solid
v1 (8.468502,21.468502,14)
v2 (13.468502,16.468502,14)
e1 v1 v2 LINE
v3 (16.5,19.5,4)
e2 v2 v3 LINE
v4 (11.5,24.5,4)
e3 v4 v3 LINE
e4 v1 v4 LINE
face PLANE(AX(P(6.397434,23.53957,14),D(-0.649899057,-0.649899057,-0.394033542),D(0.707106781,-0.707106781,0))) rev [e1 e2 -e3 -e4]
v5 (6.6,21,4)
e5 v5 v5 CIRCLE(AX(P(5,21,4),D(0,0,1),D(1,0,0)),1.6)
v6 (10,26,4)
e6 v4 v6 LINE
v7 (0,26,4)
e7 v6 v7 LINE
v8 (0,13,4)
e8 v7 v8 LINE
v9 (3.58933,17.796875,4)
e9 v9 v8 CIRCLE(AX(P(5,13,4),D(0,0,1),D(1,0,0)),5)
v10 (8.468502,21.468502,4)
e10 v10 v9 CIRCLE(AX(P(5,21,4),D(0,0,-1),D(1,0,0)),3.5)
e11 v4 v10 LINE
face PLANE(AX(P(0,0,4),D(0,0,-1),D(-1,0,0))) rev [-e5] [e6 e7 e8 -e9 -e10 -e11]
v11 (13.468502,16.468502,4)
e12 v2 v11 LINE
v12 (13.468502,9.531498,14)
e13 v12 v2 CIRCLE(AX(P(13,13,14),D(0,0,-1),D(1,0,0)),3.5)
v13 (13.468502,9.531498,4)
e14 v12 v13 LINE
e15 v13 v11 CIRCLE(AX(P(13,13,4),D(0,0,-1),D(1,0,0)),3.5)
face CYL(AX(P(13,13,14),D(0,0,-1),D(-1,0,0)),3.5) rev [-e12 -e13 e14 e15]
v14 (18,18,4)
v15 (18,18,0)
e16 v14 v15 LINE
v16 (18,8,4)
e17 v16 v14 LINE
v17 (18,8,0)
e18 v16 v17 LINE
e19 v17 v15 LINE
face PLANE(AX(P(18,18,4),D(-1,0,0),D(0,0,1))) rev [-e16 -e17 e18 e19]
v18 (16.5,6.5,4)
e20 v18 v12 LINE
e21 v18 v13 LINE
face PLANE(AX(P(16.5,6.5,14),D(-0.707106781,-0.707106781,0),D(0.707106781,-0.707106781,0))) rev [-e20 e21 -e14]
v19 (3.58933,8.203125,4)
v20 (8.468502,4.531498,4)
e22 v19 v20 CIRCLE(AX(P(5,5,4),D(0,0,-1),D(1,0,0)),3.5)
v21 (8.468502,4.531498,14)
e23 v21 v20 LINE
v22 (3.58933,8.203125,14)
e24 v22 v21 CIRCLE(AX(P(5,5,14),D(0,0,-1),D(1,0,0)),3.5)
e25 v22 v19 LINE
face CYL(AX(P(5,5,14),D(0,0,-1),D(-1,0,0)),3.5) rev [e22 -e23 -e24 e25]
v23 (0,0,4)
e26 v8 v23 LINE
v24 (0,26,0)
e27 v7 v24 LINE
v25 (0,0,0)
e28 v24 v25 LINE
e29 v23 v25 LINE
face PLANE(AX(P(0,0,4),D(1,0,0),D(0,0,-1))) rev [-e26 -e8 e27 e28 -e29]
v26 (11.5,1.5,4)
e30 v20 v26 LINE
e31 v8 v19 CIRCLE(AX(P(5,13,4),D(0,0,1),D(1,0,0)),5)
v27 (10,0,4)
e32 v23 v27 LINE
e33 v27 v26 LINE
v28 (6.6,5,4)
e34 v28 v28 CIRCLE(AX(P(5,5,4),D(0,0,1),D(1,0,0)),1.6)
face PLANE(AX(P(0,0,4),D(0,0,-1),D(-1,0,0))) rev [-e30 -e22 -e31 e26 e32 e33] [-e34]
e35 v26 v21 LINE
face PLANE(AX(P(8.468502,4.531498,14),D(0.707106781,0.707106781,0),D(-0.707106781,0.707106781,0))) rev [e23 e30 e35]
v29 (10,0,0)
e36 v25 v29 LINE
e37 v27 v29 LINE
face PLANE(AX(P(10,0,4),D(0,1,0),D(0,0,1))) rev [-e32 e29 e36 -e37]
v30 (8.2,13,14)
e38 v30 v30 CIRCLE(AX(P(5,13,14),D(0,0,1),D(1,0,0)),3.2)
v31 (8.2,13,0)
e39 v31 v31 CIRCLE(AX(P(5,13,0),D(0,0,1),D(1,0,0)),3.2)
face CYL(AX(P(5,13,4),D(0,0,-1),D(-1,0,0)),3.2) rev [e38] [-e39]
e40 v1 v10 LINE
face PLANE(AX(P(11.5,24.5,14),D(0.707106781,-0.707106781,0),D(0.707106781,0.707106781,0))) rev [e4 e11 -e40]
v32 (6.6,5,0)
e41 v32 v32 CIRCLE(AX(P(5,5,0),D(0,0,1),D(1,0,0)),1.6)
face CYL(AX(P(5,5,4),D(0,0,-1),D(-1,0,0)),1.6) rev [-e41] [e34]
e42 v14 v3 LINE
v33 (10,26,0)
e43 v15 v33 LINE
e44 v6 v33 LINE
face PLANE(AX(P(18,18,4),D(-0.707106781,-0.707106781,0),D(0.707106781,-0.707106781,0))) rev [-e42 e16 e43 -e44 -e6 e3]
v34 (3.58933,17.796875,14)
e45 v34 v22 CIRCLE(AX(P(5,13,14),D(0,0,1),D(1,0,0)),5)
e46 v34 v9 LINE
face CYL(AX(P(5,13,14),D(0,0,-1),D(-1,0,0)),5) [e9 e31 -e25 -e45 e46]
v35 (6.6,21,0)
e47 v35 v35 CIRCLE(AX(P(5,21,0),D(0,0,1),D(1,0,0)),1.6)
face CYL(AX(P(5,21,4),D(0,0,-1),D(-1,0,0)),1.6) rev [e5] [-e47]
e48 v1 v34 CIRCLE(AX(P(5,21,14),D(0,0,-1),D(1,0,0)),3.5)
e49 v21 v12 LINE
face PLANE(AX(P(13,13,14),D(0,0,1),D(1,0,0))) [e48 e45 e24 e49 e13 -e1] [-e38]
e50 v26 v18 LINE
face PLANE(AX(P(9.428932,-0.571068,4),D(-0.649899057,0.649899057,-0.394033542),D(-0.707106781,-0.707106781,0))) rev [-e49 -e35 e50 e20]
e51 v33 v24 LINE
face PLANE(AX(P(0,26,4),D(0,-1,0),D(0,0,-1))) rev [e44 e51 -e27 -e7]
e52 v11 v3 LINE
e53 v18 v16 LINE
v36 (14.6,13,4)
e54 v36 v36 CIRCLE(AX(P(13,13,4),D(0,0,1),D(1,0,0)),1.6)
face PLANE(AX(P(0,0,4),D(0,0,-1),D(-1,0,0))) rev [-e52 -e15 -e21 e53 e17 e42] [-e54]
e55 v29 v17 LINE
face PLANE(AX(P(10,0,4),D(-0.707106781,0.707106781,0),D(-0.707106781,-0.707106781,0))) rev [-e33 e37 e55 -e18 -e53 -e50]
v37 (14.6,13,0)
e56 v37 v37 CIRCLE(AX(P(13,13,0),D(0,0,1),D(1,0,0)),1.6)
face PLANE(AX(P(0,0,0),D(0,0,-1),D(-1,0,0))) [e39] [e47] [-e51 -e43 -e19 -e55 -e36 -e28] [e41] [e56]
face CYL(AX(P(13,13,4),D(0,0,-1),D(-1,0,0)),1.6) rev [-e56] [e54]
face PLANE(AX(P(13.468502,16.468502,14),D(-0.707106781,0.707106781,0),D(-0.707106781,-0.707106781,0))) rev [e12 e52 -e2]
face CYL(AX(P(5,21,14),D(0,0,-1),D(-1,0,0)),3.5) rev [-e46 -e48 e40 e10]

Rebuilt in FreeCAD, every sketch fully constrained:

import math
import FreeCAD as App
import Part
import Sketcher
from FreeCAD import Vector
Q = App.Units.Quantity

doc = App.newDocument("Part")
body = doc.addObject("PartDesign::Body", "Body")

# Sketch on XY plane
sketch1 = body.newObject("Sketcher::SketchObject", "Sketch")
sketch1.AttachmentSupport = (doc.getObject("XY_Plane"), [""])
sketch1.MapMode = "FlatFace"
sketch1.addGeometry([
    Part.LineSegment(Vector(0, 26, 0), Vector(0, 0, 0)),  # 0
    Part.LineSegment(Vector(0, 0, 0), Vector(10, 0, 0)),  # 1
    Part.LineSegment(Vector(10, 0, 0), Vector(18, 8, 0)),  # 2
    Part.LineSegment(Vector(18, 8, 0), Vector(18, 18, 0)),  # 3
    Part.LineSegment(Vector(18, 18, 0), Vector(10, 26, 0)),  # 4
    Part.LineSegment(Vector(10, 26, 0), Vector(0, 26, 0)),  # 5
    Part.Circle(Vector(5, 5, 0), Vector(0, 0, 1), 1.6),  # 6
    Part.Circle(Vector(13, 13, 0), Vector(0, 0, 1), 1.6),  # 7
    Part.Circle(Vector(5, 13, 0), Vector(0, 0, 1), 3.2),  # 8
    Part.Circle(Vector(5, 21, 0), Vector(0, 0, 1), 1.6),  # 9
], False)
sketch1.addConstraint([
    Sketcher.Constraint("Coincident", 0, 2, 1, 1),
    Sketcher.Constraint("Coincident", 1, 2, 2, 1),
    Sketcher.Constraint("Coincident", 2, 2, 3, 1),
    Sketcher.Constraint("Coincident", 3, 2, 4, 1),
    Sketcher.Constraint("Coincident", 4, 2, 5, 1),
    Sketcher.Constraint("Coincident", 5, 2, 0, 1),
    Sketcher.Constraint("Vertical", 0),
    Sketcher.Constraint("Horizontal", 1),
    Sketcher.Constraint("Vertical", 3),
    Sketcher.Constraint("Horizontal", 5),
    Sketcher.Constraint("Coincident", 0, 2, -1, 1),
    Sketcher.Constraint("Equal", 6, 7),
    Sketcher.Constraint("Equal", 7, 9),
    Sketcher.Constraint("Perpendicular", 2, 4),
    Sketcher.Constraint("Horizontal", 7, 3, 8, 3),
    Sketcher.Constraint("Vertical", 6, 3, 8, 3),
    Sketcher.Constraint("Vertical", 8, 3, 9, 3),
    Sketcher.Constraint("Vertical", 1, 2, 4, 2),
    Sketcher.Constraint("Equal", 5, 3),
    Sketcher.Constraint("Equal", 2, 4),
    Sketcher.Constraint("Diameter", 6, Q("3.2 mm")),
    Sketcher.Constraint("Diameter", 8, Q("6.4 mm")),
    Sketcher.Constraint("DistanceX", 1, 1, 1, 2, Q("10 mm")),
    Sketcher.Constraint("DistanceY", 0, 2, 0, 1, Q("26 mm")),
    Sketcher.Constraint("DistanceX", -1, 1, 6, 3, Q("5 mm")),
    Sketcher.Constraint("DistanceY", -1, 1, 6, 3, Q("5 mm")),
    Sketcher.Constraint("DistanceX", -1, 1, 7, 3, Q("13 mm")),
    Sketcher.Constraint("DistanceY", -1, 1, 7, 3, Q("13 mm")),
    Sketcher.Constraint("DistanceY", -1, 1, 9, 3, Q("21 mm")),
])
pad1 = body.newObject("PartDesign::Pad", "Pad")
pad1.Profile = sketch1
pad1.Length = 4

# Sketch on XY plane
sketch2 = body.newObject("Sketcher::SketchObject", "Sketch001")
sketch2.AttachmentSupport = (doc.getObject("XY_Plane"), [""])
sketch2.MapMode = "FlatFace"
sketch2.AttachmentOffset = App.Placement(Vector(0, 0, 4), App.Rotation())
sketch2.addGeometry([
    Part.LineSegment(Vector(13.468502, 16.468502, 0), Vector(16.5, 19.5, 0)),  # 0
    Part.LineSegment(Vector(16.5, 19.5, 0), Vector(11.5, 24.5, 0)),  # 1
    Part.LineSegment(Vector(11.5, 24.5, 0), Vector(8.468502, 21.468502, 0)),  # 2
    Part.ArcOfCircle(Part.Circle(Vector(5, 21, 0), Vector(0, 0, 1), 3.5), math.radians(-113.768901), math.radians(7.692572)),  # 3
    Part.ArcOfCircle(Part.Circle(Vector(5, 13, 0), Vector(0, 0, 1), 5), math.radians(106.387612), math.radians(253.612388)),  # 4
    Part.ArcOfCircle(Part.Circle(Vector(5, 5, 0), Vector(0, 0, 1), 3.5), math.radians(-7.692572), math.radians(113.768901)),  # 5
    Part.LineSegment(Vector(8.468502, 4.531498, 0), Vector(11.5, 1.5, 0)),  # 6
    Part.LineSegment(Vector(11.5, 1.5, 0), Vector(16.5, 6.5, 0)),  # 7
    Part.LineSegment(Vector(16.5, 6.5, 0), Vector(13.468502, 9.531498, 0)),  # 8
    Part.ArcOfCircle(Part.Circle(Vector(13, 13, 0), Vector(0, 0, 1), 3.5), math.radians(82.307428), math.radians(277.692572)),  # 9
    Part.Circle(Vector(5, 13, 0), Vector(0, 0, 1), 3.2),  # 10
], False)
sketch2.addConstraint([
    Sketcher.Constraint("Coincident", 0, 2, 1, 1),
    Sketcher.Constraint("Coincident", 1, 2, 2, 1),
    Sketcher.Constraint("Coincident", 2, 2, 3, 2),
    Sketcher.Constraint("Coincident", 3, 1, 4, 1),
    Sketcher.Constraint("Coincident", 4, 2, 5, 2),
    Sketcher.Constraint("Coincident", 5, 1, 6, 1),
    Sketcher.Constraint("Coincident", 6, 2, 7, 1),
    Sketcher.Constraint("Coincident", 7, 2, 8, 1),
    Sketcher.Constraint("Coincident", 8, 2, 9, 2),
    Sketcher.Constraint("Coincident", 9, 1, 0, 1),
    Sketcher.Constraint("Coincident", 10, 3, 4, 3),
    Sketcher.Constraint("Equal", 3, 5),
    Sketcher.Constraint("Equal", 5, 9),
    Sketcher.Constraint("Perpendicular", 0, 1),
    Sketcher.Constraint("Perpendicular", 1, 2),
    Sketcher.Constraint("Perpendicular", 2, 6),
    Sketcher.Constraint("Perpendicular", 6, 7),
    Sketcher.Constraint("Perpendicular", 7, 8),
    Sketcher.Constraint("Horizontal", 4, 3, 9, 3),
    Sketcher.Constraint("Vertical", 3, 3, 4, 3),
    Sketcher.Constraint("Vertical", 4, 3, 5, 3),
    Sketcher.Constraint("Vertical", 3, 1, 4, 2),
    Sketcher.Constraint("Vertical", 2, 2, 5, 1),
    Sketcher.Constraint("Vertical", 1, 2, 6, 2),
    Sketcher.Constraint("Vertical", 0, 2, 7, 2),
    Sketcher.Constraint("Vertical", 8, 2, 9, 1),
    Sketcher.Constraint("Equal", 0, 2),
    Sketcher.Constraint("Radius", 4, Q("5 mm")),
    Sketcher.Constraint("Diameter", 10, Q("6.4 mm")),
    Sketcher.Constraint("Radius", 3, Q("3.5 mm")),
    Sketcher.Constraint("DistanceX", -1, 1, 3, 3, Q("5 mm")),
    Sketcher.Constraint("DistanceY", -1, 1, 3, 3, Q("21 mm")),
    Sketcher.Constraint("DistanceY", -1, 1, 4, 3, Q("13 mm")),
    Sketcher.Constraint("DistanceX", -1, 1, 9, 3, Q("13 mm")),
    Sketcher.Constraint("DistanceX", 1, 2, 0, 2, Q("5 mm")),
    Sketcher.Constraint("DistanceY", 7, 2, 0, 2, Q("13 mm")),
])
pad2 = body.newObject("PartDesign::Pad", "Pad001")
pad2.Profile = sketch2
pad2.Length = 10

# Sketch on an angled plane
sketch3 = body.newObject("Sketcher::SketchObject", "Sketch002")
sketch3.Placement = App.Placement(Vector(-1.5, 1.5, 0), App.Rotation(Vector(0, 0, -1), Vector(0.707106781, 0.707106781, 0), Vector(0.707106781, -0.707106781, 0), "ZXY"))
sketch3.addGeometry([
    Part.LineSegment(Vector(-4, 25.455844, 0), Vector(-14, 25.455844, 0)),
    Part.LineSegment(Vector(-14, 25.455844, 0), Vector(-14, 21.168658, 0)),
    Part.LineSegment(Vector(-14, 21.168658, 0), Vector(-4, 25.455844, 0)),
], False)
sketch3.addConstraint([
    Sketcher.Constraint("Coincident", 0, 2, 1, 1),
    Sketcher.Constraint("Coincident", 1, 2, 2, 1),
    Sketcher.Constraint("Coincident", 2, 2, 0, 1),
    Sketcher.Constraint("Horizontal", 0),
    Sketcher.Constraint("Vertical", 1),
    Sketcher.Constraint("DistanceX", 0, 2, 0, 1, Q("10 mm")),
    Sketcher.Constraint("DistanceX", 0, 2, -1, 1, Q("14 mm")),
    Sketcher.Constraint("DistanceY", 1, 2, 1, 1, Q("4.287186 mm")),
    Sketcher.Constraint("DistanceY", -1, 1, 1, 2, Q("21.168658 mm")),
])
pocket1 = body.newObject("PartDesign::Pocket", "Pocket")
pocket1.Profile = sketch3
pocket1.Length = 10

# Sketch on an angled plane
sketch4 = body.newObject("Sketcher::SketchObject", "Sketch003")
sketch4.Placement = App.Placement(Vector(11.5, 11.5, 0), App.Rotation(Vector(0, 0, -1), Vector(-0.707106781, 0.707106781, 0), Vector(0.707106781, 0.707106781, 0), "ZXY"))
sketch4.addGeometry([
    Part.LineSegment(Vector(-4, -7.071068, 0), Vector(-14, -2.783882, 0)),
    Part.LineSegment(Vector(-14, -2.783882, 0), Vector(-14, -7.071068, 0)),
    Part.LineSegment(Vector(-14, -7.071068, 0), Vector(-4, -7.071068, 0)),
], False)
sketch4.addConstraint([
    Sketcher.Constraint("Coincident", 0, 2, 1, 1),
    Sketcher.Constraint("Coincident", 1, 2, 2, 1),
    Sketcher.Constraint("Coincident", 2, 2, 0, 1),
    Sketcher.Constraint("Vertical", 1),
    Sketcher.Constraint("Horizontal", 2),
    Sketcher.Constraint("DistanceX", 2, 1, 2, 2, Q("10 mm")),
    Sketcher.Constraint("DistanceX", 0, 2, -1, 1, Q("14 mm")),
    Sketcher.Constraint("DistanceY", 1, 2, 1, 1, Q("4.287186 mm")),
    Sketcher.Constraint("DistanceY", 0, 2, -1, 1, Q("2.783882 mm")),
])
pocket2 = body.newObject("PartDesign::Pocket", "Pocket001")
pocket2.Profile = sketch4
pocket2.Length = 10

doc.recompute()
